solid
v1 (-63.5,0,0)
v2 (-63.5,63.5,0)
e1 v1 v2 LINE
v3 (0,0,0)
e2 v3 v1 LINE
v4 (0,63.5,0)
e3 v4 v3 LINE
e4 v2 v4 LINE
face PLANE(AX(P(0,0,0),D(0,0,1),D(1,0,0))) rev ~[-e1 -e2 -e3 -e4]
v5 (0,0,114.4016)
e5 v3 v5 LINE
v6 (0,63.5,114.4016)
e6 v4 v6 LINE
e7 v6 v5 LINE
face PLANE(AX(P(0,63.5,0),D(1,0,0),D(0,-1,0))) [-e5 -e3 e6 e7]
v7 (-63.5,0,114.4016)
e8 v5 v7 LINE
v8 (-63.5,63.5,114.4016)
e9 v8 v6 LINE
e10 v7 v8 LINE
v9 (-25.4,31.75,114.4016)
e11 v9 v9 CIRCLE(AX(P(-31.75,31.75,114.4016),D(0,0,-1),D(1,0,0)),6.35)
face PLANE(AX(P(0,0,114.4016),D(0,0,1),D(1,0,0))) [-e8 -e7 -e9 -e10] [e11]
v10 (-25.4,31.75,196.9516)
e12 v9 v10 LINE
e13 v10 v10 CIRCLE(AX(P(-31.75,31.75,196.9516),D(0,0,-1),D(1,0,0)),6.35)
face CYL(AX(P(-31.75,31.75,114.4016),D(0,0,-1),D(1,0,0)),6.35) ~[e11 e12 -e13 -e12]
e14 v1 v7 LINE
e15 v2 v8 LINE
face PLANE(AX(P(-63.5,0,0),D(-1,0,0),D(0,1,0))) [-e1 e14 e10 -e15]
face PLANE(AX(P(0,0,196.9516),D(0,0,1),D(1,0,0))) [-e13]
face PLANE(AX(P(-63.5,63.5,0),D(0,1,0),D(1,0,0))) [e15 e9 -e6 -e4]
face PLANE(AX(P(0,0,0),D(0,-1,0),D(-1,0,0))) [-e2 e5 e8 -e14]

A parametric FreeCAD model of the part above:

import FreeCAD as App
import Part
import Sketcher
from FreeCAD import Vector
Q = App.Units.Quantity


def add_polygon(sketch, points):
    """Adds a closed chain of lines whose ends are joined by coincident constraints."""
    first, n = sketch.GeometryCount, len(points)
    for a, b in zip(points, points[1:] + points[:1]):
        sketch.addGeometry(Part.LineSegment(App.Vector(*a, 0), App.Vector(*b, 0)), False)
    for i in range(n):
        sketch.addConstraint(Sketcher.Constraint("Coincident", first + i, 2, first + (i + 1) % n, 1))

doc = App.newDocument("Part")
body = doc.addObject("PartDesign::Body", "Body")

# Sketch on XY plane
sketch1 = body.newObject("Sketcher::SketchObject", "Sketch")
sketch1.AttachmentSupport = (doc.getObject("XY_Plane"), [""])
sketch1.MapMode = "FlatFace"
add_polygon(sketch1, [(-64, 0), (0, 0), (0, 64), (-64, 64)])  # lines 0-3
sketch1.addConstraint(Sketcher.Constraint("Horizontal", 0))
sketch1.addConstraint(Sketcher.Constraint("Vertical", 1))
sketch1.addConstraint(Sketcher.Constraint("Horizontal", 2))
sketch1.addConstraint(Sketcher.Constraint("Vertical", 3))
sketch1.addConstraint(Sketcher.Constraint("Coincident", 0, 2, -1, 1))
sketch1.addConstraint(Sketcher.Constraint("Equal", 2, 1))
sketch1.addConstraint(Sketcher.Constraint("DistanceX", 0, 1, 0, 2, Q("2.5 in")))
pad1 = body.newObject("PartDesign::Pad", "Pad")
pad1.Profile = sketch1
pad1.Length = Q("4.504 in")

# Sketch on XY plane
sketch2 = body.newObject("Sketcher::SketchObject", "Sketch001")
sketch2.AttachmentSupport = (doc.getObject("XY_Plane"), [""])
sketch2.MapMode = "FlatFace"
sketch2.AttachmentOffset = App.Placement(Vector(0, 0, 4.504 * 25.4), App.Rotation())
sketch2.addGeometry(Part.Circle(Vector(-32, 32, 0), Vector(0, 0, 1), 6), False)
sketch2.addConstraint(Sketcher.Constraint("Diameter", 0, Q("0.5 in")))
sketch2.addConstraint(Sketcher.Constraint("DistanceX", 0, 3, -1, 1, Q("1.25 in")))
sketch2.addConstraint(Sketcher.Constraint("DistanceY", -1, 1, 0, 3, Q("1.25 in")))
pad2 = body.newObject("PartDesign::Pad", "Pad001")
pad2.Profile = sketch2
pad2.Length = Q("3.25 in")

doc.recompute()
